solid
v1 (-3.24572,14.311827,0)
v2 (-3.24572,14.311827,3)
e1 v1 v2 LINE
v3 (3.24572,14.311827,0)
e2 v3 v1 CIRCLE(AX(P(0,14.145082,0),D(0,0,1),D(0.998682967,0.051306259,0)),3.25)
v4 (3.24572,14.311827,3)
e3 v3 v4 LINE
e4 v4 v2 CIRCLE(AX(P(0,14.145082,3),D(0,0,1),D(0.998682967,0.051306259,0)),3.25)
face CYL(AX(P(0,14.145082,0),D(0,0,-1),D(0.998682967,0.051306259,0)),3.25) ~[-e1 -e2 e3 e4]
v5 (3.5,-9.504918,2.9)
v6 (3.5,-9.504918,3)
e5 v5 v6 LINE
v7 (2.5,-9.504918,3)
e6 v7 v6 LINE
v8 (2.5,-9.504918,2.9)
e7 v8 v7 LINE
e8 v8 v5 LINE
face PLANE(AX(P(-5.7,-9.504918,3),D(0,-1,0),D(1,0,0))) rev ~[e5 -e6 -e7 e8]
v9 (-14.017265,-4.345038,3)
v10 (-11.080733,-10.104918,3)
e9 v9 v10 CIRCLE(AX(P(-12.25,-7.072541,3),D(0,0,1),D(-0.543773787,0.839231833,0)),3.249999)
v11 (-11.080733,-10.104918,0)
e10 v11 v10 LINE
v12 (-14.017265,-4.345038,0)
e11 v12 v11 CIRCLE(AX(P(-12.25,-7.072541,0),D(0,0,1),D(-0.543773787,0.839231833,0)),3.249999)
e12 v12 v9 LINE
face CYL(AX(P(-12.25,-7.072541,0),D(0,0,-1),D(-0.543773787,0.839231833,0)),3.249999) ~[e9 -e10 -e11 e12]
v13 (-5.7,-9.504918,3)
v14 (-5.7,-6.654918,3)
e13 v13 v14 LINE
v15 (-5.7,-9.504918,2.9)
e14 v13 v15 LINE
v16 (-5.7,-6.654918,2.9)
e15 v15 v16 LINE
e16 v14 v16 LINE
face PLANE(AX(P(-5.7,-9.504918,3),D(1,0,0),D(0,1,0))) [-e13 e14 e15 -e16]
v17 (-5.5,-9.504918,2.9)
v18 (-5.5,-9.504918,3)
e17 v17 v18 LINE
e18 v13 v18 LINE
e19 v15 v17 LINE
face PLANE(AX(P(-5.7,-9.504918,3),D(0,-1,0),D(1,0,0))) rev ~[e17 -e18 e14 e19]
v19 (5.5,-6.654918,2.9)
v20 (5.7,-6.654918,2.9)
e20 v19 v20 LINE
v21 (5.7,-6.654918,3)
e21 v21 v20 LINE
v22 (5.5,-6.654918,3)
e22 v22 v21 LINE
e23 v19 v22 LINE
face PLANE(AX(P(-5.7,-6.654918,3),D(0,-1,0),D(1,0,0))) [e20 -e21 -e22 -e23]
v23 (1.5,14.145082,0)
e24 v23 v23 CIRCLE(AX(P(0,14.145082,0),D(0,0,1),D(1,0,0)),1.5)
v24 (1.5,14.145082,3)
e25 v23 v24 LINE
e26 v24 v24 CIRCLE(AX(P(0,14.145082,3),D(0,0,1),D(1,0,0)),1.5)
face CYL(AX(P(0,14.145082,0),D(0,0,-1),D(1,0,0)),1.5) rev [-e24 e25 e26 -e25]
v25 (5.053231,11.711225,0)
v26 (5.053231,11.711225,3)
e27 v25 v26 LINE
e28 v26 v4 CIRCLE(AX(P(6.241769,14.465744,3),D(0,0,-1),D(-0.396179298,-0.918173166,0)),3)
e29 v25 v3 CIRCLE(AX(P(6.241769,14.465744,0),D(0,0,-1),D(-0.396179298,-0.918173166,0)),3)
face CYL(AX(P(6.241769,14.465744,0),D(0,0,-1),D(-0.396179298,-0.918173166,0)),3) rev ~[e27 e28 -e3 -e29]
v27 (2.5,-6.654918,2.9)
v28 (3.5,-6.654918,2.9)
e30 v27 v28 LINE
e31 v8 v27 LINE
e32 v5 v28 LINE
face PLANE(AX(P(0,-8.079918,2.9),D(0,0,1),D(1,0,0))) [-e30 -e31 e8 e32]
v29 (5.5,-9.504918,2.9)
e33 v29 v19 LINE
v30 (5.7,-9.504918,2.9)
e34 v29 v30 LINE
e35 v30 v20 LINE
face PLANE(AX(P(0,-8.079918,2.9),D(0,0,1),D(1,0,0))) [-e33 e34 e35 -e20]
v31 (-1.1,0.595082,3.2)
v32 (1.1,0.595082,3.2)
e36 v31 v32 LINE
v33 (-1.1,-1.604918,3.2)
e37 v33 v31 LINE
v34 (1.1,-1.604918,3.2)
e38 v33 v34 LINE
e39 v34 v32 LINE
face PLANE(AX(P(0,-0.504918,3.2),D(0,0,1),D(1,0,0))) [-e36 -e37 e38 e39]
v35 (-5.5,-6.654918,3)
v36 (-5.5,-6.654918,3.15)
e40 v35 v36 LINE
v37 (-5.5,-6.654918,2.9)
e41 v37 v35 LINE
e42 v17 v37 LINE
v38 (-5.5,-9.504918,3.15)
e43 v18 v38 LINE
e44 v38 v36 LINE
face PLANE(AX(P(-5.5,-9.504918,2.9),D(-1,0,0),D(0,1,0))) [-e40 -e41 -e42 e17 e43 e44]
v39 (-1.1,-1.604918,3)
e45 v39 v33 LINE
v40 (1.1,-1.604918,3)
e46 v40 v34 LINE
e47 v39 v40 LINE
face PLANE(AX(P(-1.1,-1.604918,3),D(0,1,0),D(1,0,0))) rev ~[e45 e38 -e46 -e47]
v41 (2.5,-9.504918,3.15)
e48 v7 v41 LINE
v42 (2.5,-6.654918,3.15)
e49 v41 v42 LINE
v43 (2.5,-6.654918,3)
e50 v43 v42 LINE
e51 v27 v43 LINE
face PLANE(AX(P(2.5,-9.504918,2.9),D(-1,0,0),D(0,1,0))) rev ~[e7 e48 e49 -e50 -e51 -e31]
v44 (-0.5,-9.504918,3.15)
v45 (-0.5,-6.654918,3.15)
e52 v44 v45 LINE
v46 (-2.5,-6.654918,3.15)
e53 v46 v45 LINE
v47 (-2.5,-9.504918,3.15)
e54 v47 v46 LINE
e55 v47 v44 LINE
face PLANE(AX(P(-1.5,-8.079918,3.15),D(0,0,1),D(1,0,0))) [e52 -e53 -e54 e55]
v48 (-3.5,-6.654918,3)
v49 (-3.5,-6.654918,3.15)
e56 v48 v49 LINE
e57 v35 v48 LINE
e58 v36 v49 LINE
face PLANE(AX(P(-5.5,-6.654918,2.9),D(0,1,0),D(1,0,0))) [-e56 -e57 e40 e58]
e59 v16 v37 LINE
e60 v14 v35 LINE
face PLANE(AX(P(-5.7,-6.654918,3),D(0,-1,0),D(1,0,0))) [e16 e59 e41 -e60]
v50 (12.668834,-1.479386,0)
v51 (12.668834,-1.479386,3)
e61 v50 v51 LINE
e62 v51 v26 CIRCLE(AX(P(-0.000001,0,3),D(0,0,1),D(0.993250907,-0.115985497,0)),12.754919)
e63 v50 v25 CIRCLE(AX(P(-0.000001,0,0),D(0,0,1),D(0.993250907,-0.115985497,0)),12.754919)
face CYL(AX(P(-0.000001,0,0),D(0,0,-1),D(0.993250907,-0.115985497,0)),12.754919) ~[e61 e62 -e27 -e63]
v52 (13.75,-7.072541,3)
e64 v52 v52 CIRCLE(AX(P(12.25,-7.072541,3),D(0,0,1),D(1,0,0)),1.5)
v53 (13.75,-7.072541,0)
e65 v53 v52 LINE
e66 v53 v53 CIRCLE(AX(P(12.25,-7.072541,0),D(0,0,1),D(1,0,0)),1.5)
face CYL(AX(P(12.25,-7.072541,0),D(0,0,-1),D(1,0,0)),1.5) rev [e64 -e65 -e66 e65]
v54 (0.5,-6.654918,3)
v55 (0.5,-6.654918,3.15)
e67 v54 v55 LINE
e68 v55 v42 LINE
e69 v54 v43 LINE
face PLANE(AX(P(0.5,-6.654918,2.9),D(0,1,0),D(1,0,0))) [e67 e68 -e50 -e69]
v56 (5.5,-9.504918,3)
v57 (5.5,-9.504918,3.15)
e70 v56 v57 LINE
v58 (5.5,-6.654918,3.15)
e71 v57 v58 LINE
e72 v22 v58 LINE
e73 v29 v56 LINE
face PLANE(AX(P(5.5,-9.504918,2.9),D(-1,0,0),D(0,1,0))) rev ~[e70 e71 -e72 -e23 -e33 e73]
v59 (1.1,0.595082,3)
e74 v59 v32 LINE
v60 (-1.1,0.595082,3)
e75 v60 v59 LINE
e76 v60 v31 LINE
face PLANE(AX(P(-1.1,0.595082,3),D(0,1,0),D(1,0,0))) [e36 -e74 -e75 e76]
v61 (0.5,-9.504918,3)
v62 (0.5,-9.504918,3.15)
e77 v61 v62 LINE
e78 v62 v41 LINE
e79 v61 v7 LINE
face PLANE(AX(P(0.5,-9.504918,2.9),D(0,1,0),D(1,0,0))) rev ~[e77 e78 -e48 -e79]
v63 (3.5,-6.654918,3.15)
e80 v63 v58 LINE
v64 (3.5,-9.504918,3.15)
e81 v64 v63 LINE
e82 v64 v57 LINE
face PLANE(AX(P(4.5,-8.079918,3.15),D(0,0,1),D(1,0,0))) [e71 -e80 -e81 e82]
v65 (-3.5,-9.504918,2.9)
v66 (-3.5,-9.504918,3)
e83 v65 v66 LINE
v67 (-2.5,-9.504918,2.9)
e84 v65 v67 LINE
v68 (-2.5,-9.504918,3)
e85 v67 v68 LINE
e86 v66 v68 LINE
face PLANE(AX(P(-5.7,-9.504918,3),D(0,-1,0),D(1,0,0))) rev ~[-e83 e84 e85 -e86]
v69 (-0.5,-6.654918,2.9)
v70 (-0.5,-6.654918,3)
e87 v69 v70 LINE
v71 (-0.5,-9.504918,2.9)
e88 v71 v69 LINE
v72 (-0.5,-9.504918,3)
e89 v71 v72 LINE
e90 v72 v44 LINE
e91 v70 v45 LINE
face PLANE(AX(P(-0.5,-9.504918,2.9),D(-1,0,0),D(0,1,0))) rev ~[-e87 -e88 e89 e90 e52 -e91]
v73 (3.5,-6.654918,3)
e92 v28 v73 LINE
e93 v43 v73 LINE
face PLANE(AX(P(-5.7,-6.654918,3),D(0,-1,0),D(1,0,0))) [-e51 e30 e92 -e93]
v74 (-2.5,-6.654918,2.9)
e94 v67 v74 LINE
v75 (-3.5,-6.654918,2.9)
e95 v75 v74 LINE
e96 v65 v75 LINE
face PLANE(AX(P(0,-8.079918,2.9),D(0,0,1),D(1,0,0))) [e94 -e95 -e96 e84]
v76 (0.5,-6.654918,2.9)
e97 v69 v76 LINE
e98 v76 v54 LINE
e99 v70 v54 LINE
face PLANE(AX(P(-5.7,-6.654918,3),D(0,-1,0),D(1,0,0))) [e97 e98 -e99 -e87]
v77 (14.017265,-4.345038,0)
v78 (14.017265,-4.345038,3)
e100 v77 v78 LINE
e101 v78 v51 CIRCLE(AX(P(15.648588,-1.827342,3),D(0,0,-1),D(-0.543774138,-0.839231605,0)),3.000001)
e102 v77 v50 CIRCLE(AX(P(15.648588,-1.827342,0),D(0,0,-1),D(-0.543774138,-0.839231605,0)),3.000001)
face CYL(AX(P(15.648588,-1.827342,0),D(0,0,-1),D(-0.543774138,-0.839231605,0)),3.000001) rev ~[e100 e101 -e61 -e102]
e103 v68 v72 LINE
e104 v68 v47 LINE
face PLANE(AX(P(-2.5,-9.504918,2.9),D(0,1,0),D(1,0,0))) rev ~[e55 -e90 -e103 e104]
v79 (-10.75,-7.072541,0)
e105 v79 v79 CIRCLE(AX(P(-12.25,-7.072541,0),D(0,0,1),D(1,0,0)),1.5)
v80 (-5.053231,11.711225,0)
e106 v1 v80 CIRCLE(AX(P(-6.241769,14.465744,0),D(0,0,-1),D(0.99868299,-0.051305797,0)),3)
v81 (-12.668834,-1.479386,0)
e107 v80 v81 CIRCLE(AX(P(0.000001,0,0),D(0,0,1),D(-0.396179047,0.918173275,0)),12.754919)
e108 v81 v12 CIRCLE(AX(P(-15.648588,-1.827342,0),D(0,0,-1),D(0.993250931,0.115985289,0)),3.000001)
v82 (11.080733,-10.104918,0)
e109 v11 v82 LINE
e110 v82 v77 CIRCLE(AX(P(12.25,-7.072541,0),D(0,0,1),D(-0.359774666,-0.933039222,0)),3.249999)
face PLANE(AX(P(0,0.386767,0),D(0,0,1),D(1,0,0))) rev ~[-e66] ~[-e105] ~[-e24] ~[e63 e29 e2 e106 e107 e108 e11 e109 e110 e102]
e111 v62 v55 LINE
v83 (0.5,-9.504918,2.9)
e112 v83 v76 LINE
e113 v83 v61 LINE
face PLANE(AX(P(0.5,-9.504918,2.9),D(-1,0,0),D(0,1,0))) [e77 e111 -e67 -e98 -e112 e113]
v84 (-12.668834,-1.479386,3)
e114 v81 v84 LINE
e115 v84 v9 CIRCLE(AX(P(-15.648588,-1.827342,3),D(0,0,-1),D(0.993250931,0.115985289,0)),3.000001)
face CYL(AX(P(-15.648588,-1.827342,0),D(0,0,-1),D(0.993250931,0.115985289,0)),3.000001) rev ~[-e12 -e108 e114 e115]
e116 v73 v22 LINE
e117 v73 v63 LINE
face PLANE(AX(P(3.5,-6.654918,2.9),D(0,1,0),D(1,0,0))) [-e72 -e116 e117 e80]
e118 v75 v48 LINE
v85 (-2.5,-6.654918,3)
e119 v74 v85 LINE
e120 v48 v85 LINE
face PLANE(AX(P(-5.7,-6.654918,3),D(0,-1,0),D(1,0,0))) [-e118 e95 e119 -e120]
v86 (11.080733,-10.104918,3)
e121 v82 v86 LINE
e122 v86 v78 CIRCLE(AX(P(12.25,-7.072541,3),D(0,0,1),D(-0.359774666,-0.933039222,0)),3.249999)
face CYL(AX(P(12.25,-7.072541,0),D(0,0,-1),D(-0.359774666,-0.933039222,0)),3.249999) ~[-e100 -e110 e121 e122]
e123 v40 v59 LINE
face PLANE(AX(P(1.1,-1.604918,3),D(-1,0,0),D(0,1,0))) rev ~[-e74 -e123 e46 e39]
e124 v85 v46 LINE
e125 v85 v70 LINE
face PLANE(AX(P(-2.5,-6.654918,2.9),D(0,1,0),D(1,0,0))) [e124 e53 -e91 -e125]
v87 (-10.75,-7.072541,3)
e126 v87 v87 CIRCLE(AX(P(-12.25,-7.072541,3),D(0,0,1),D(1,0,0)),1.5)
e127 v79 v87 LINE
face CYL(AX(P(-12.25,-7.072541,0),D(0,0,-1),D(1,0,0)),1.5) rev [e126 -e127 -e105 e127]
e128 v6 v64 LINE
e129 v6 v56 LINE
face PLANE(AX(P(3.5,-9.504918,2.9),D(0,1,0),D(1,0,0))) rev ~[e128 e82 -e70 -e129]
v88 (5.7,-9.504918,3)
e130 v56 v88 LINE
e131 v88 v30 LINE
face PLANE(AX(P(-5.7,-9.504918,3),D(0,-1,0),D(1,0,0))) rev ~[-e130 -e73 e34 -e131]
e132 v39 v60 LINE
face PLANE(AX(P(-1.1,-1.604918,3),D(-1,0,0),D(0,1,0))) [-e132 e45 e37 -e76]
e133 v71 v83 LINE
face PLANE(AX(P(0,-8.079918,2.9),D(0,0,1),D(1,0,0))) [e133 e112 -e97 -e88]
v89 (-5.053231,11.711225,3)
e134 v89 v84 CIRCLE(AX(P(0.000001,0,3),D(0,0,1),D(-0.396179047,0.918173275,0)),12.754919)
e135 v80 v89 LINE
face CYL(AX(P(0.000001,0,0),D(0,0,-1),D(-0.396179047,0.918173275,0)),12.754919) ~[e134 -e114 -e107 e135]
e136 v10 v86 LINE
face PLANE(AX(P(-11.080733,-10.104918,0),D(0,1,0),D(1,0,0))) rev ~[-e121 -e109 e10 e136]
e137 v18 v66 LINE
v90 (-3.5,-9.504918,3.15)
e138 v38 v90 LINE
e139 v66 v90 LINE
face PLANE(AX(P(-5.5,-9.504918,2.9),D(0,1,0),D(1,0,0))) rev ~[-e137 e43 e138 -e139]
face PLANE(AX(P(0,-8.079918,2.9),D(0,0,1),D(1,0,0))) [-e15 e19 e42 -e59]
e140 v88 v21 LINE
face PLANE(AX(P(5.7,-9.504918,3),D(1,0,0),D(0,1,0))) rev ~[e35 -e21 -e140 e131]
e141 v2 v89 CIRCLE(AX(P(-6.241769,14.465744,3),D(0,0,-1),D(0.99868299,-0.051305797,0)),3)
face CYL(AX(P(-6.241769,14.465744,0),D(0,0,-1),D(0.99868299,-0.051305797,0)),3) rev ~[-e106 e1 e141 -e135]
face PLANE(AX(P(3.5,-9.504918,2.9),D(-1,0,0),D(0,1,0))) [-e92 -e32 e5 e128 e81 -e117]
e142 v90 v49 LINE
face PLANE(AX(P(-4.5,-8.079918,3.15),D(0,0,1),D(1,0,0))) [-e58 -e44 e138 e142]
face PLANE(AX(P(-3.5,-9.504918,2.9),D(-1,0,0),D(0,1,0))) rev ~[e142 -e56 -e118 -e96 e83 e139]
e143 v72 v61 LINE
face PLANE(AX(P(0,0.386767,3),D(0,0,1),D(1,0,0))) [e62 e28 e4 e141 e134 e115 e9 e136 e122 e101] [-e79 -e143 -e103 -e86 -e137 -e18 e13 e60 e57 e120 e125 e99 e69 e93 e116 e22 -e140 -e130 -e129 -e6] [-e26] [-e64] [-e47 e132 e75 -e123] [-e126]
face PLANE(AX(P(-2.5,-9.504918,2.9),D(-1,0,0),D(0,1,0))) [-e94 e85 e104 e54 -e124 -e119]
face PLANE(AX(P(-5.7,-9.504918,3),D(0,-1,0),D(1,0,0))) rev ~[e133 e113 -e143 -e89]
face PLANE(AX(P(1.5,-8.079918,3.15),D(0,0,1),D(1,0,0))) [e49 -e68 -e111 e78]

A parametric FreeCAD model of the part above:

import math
import FreeCAD as App
import Part
import Sketcher
from FreeCAD import Vector
Q = App.Units.Quantity


def add_polygon(sketch, points):
    """Adds a closed chain of lines whose ends are joined by coincident constraints."""
    first, n = sketch.GeometryCount, len(points)
    for a, b in zip(points, points[1:] + points[:1]):
        sketch.addGeometry(Part.LineSegment(App.Vector(*a, 0), App.Vector(*b, 0)), False)
    for i in range(n):
        sketch.addConstraint(Sketcher.Constraint("Coincident", first + i, 2, first + (i + 1) % n, 1))

doc = App.newDocument("Part")
params = doc.addObject("Spreadsheet::Sheet", "Params")
for row, (alias, value) in enumerate([
    ("sketch1_diameter", "3 mm"),
    ("sketch1_radius", "3 mm"),
    ("sketch1_radius2", "3.25 mm"),
    ("pad1_length", "3 mm"),
    ("sketch2_width", "2.2 mm"),
    ("pad2_length", "0.2 mm"),
    ("sketch3_width", "11.4 mm"),
    ("sketch3_height", "2.85 mm"),
    ("pocket1_length", "0.1 mm"),
    ("sketch4_width", "2 mm"),
    ("sketch4_height", "2.85 mm"),
    ("pad3_length", "0.25 mm"),
], start=1):
    params.set(f"A{row}", alias)
    params.set(f"B{row}", "=" + value)
    params.setAlias(f"B{row}", alias)

body = doc.addObject("PartDesign::Body", "Body")

sketch1 = doc.addObject("Sketcher::SketchObject", "Sketch")
body.addObject(sketch1)
sketch1.AttachmentSupport = (doc.XY_Plane, [""])
sketch1.MapMode = "FlatFace"
sketch1.addGeometry([
    Part.ArcOfCircle(Part.Circle(Vector(6.2, 14.5, 0), Vector(0, 0, 1), 3), math.radians(-177), math.radians(-113)),
    Part.ArcOfCircle(Part.Circle(Vector(0, 14.1, 0), Vector(0, 0, 1), 3.3), math.radians(3), math.radians(177)),
    Part.ArcOfCircle(Part.Circle(Vector(-6.2, 14.5, 0), Vector(0, 0, 1), 3), math.radians(-67), math.radians(-3)),
    Part.ArcOfCircle(Part.Circle(Vector(0, 0, 0), Vector(0, 0, 1), 12.8), math.radians(113), math.radians(187)),
    Part.ArcOfCircle(Part.Circle(Vector(-15.6, -1.8, 0), Vector(0, 0, 1), 3), math.radians(-57), math.radians(7)),
    Part.ArcOfCircle(Part.Circle(Vector(-12.3, -7.1, 0), Vector(0, 0, 1), 3.2), math.radians(123), math.radians(291)),
    Part.LineSegment(Vector(-11.1, -10.1, 0), Vector(11.1, -10.1, 0)),
    Part.ArcOfCircle(Part.Circle(Vector(12.3, -7.1, 0), Vector(0, 0, 1), 3.2), math.radians(-111), math.radians(57)),
    Part.ArcOfCircle(Part.Circle(Vector(15.6, -1.8, 0), Vector(0, 0, 1), 3), math.radians(173), math.radians(237)),
    Part.ArcOfCircle(Part.Circle(Vector(0, 0, 0), Vector(0, 0, 1), 12.8), math.radians(-7), math.radians(67)),
    Part.Circle(Vector(-12.2, -7.1, 0), Vector(0, 0, 1), 1.5),
    Part.Circle(Vector(12.2, -7.1, 0), Vector(0, 0, 1), 1.5),
    Part.Circle(Vector(0, 14.1, 0), Vector(0, 0, 1), 1.5),
], False)
sketch1.addConstraint([
    Sketcher.Constraint("Tangent", 0, 1, 1, 1),
    Sketcher.Constraint("Tangent", 1, 2, 2, 2),
    Sketcher.Constraint("Tangent", 2, 1, 3, 1),
    Sketcher.Constraint("Tangent", 3, 2, 4, 2),
    Sketcher.Constraint("Tangent", 4, 1, 5, 1),
    Sketcher.Constraint("Coincident", 5, 2, 6, 1),
    Sketcher.Constraint("Coincident", 6, 2, 7, 1),
    Sketcher.Constraint("Tangent", 7, 2, 8, 2),
    Sketcher.Constraint("Tangent", 8, 1, 9, 1),
    Sketcher.Constraint("Tangent", 9, 2, 0, 2),
    Sketcher.Constraint("Horizontal", 6),
    Sketcher.Constraint("Coincident", 3, 3, -1, 1),
    Sketcher.Constraint("Coincident", 9, 3, -1, 1),
    Sketcher.Constraint("Coincident", 10, 3, 5, 3),
    Sketcher.Constraint("Coincident", 11, 3, 7, 3),
    Sketcher.Constraint("Coincident", 12, 3, 1, 3),
    Sketcher.Constraint("Equal", 0, 2),
    Sketcher.Constraint("Equal", 2, 4),
    Sketcher.Constraint("Equal", 1, 5),
    Sketcher.Constraint("Equal", 5, 7),
    Sketcher.Constraint("Equal", 4, 8),
    Sketcher.Constraint("Equal", 3, 9),
    Sketcher.Constraint("Equal", 10, 11),
    Sketcher.Constraint("Equal", 11, 12),
    Sketcher.Constraint("Symmetric", 5, 3, 7, 3, -2),
    Sketcher.Constraint("PointOnObject", 1, 3, -2),
    Sketcher.Constraint("Diameter", 10, Q("3 mm")),
    Sketcher.Constraint("Radius", 0, Q("3 mm")),
    Sketcher.Constraint("Radius", 1, Q("3.25 mm")),
    Sketcher.Constraint("DistanceX", 5, 3, 7, 3, Q("24.500001 mm")),
    Sketcher.Constraint("Radius", 3, Q("12.754919 mm")),
    Sketcher.Constraint("DistanceY", 5, 3, 4, 3, Q("5.245199 mm")),
    Sketcher.Constraint("DistanceX", 3, 2, 5, 2, Q("1.588101 mm")),
    Sketcher.Constraint("DistanceY", 9, 2, 0, 1, Q("2.600602 mm")),
])
sketch1.setExpression("Constraints[26]", "Params.sketch1_diameter")
sketch1.setExpression("Constraints[27]", "Params.sketch1_radius")
sketch1.setExpression("Constraints[28]", "Params.sketch1_radius2")
pad1 = doc.addObject("PartDesign::Pad", "Pad")
body.addObject(pad1)
pad1.Profile = sketch1
pad1.setExpression("Length", "Params.pad1_length")

sketch2 = doc.addObject("Sketcher::SketchObject", "Sketch001")
body.addObject(sketch2)
sketch2.AttachmentSupport = (doc.XY_Plane, [""])
sketch2.MapMode = "FlatFace"
sketch2.AttachmentOffset = App.Placement(Vector(0, 0, 3), App.Rotation())
add_polygon(sketch2, [(-1.1, 0.6), (-1.1, -1.6), (1.1, -1.6), (1.1, 0.6)])
sketch2.addConstraint([
    Sketcher.Constraint("Vertical", 0),
    Sketcher.Constraint("Horizontal", 1),
    Sketcher.Constraint("Vertical", 2),
    Sketcher.Constraint("Horizontal", 3),
    Sketcher.Constraint("Equal", 3, 0),
    Sketcher.Constraint("DistanceX", 1, 1, 1, 2, Q("2.2 mm")),
    Sketcher.Constraint("DistanceX", 0, 2, -1, 1, Q("1.1 mm")),
    Sketcher.Constraint("DistanceY", 0, 2, -1, 1, Q("1.604918 mm")),
])
sketch2.setExpression("Constraints[9]", "Params.sketch2_width")
pad2 = doc.addObject("PartDesign::Pad", "Pad001")
body.addObject(pad2)
pad2.Profile = sketch2
pad2.setExpression("Length", "Params.pad2_length")

sketch3 = doc.addObject("Sketcher::SketchObject", "Sketch002")
body.addObject(sketch3)
sketch3.AttachmentSupport = (doc.XY_Plane, [""])
sketch3.MapMode = "FlatFace"
sketch3.AttachmentOffset = App.Placement(Vector(0, 0, 3), App.Rotation())
add_polygon(sketch3, [(-5.7, -6.7), (-5.7, -9.5), (5.7, -9.5), (5.7, -6.7)])
sketch3.addConstraint([
    Sketcher.Constraint("Vertical", 0),
    Sketcher.Constraint("Horizontal", 1),
    Sketcher.Constraint("Vertical", 2),
    Sketcher.Constraint("Horizontal", 3),
    Sketcher.Constraint("DistanceX", 1, 1, 1, 2, Q("11.4 mm")),
    Sketcher.Constraint("DistanceY", 0, 2, 0, 1, Q("2.85 mm")),
    Sketcher.Constraint("DistanceX", 0, 2, -1, 1, Q("5.7 mm")),
    Sketcher.Constraint("DistanceY", 2, 2, -1, 1, Q("6.654918 mm")),
])
sketch3.setExpression("Constraints[8]", "Params.sketch3_width")
sketch3.setExpression("Constraints[9]", "Params.sketch3_height")
pocket1 = doc.addObject("PartDesign::Pocket", "Pocket")
body.addObject(pocket1)
pocket1.Profile = sketch3
pocket1.setExpression("Length", "Params.pocket1_length")

sketch4 = doc.addObject("Sketcher::SketchObject", "Sketch003")
body.addObject(sketch4)
sketch4.AttachmentSupport = (doc.XY_Plane, [""])
sketch4.MapMode = "FlatFace"
sketch4.AttachmentOffset = App.Placement(Vector(0, 0, 2.9), App.Rotation())
add_polygon(sketch4, [(-2.5, -6.7), (-2.5, -9.5), (-0.5, -9.5), (-0.5, -6.7)])
add_polygon(sketch4, [(-5.5, -6.7), (-5.5, -9.5), (-3.5, -9.5), (-3.5, -6.7)])
add_polygon(sketch4, [(0.5, -6.7), (0.5, -9.5), (2.5, -9.5), (2.5, -6.7)])
add_polygon(sketch4, [(3.5, -6.7), (3.5, -9.5), (5.5, -9.5), (5.5, -6.7)])
sketch4.addConstraint([
    Sketcher.Constraint("Vertical", 0),
    Sketcher.Constraint("Horizontal", 1),
    Sketcher.Constraint("Vertical", 2),
    Sketcher.Constraint("Horizontal", 3),
    Sketcher.Constraint("Vertical", 4),
    Sketcher.Constraint("Horizontal", 5),
    Sketcher.Constraint("Vertical", 6),
    Sketcher.Constraint("Horizontal", 7),
    Sketcher.Constraint("Vertical", 8),
    Sketcher.Constraint("Horizontal", 9),
    Sketcher.Constraint("Vertical", 10),
    Sketcher.Constraint("Horizontal", 11),
    Sketcher.Constraint("Vertical", 12),
    Sketcher.Constraint("Horizontal", 13),
    Sketcher.Constraint("Vertical", 14),
    Sketcher.Constraint("Horizontal", 15),
    Sketcher.Constraint("Symmetric", 1, 2, 8, 2, -2),
    Sketcher.Constraint("Symmetric", 3, 2, 10, 2, -2),
    Sketcher.Constraint("Symmetric", 5, 2, 12, 2, -2),
    Sketcher.Constraint("Symmetric", 7, 2, 14, 2, -2),
    Sketcher.Constraint("Horizontal", 1, 2, 4, 2),
    Sketcher.Constraint("Horizontal", 3, 2, 6, 2),
    Sketcher.Constraint("Equal", 3, 5),
    Sketcher.Constraint("DistanceX", 1, 1, 1, 2, Q("2 mm")),
    Sketcher.Constraint("DistanceX", 4, 2, 0, 2, Q("3 mm")),
    Sketcher.Constraint("DistanceX", 1, 2, 8, 2, Q("1 mm")),
    Sketcher.Constraint("DistanceY", 0, 2, 0, 1, Q("2.85 mm")),
    Sketcher.Constraint("DistanceY", 2, 2, -1, 1, Q("6.654918 mm")),
])
sketch4.setExpression("Constraints[39]", "Params.sketch4_width")
sketch4.setExpression("Constraints[42]", "Params.sketch4_height")
pad3 = doc.addObject("PartDesign::Pad", "Pad002")
body.addObject(pad3)
pad3.Profile = sketch4
pad3.setExpression("Length", "Params.pad3_length")

doc.recompute()
